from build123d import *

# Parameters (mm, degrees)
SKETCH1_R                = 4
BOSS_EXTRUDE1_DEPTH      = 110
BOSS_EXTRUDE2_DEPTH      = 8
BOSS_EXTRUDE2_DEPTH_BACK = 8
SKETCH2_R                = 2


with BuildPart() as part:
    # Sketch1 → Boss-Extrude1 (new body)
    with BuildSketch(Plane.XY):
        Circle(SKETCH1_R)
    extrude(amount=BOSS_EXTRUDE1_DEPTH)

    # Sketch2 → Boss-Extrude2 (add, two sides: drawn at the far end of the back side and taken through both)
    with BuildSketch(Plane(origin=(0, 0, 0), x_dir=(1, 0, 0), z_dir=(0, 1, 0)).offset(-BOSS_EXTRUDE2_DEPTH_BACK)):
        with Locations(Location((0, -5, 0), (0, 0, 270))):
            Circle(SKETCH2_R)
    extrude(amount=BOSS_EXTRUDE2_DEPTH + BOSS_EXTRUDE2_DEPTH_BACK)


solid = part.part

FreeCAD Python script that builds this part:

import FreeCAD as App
import Part
import Sketcher

V = App.Vector

doc = App.newDocument("Part")
body = doc.addObject("PartDesign::Body", "Body")

sketch1 = doc.addObject("Sketcher::SketchObject", "Sketch")
body.addObject(sketch1)
sketch1.AttachmentSupport = (doc.XY_Plane, [""])
sketch1.MapMode = "FlatFace"
sketch1.addGeometry(Part.Circle(V(0, 0, 0), V(0, 0, 1), 4), False)
sketch1.addConstraint([
    Sketcher.Constraint("Coincident", 0, 3, -1, 1),
    Sketcher.Constraint("Diameter", 0, 8.0),
])
pad1 = doc.addObject("PartDesign::Pad", "Pad")
body.addObject(pad1)
pad1.Profile = sketch1
pad1.Length = 110

sketch2 = doc.addObject("Sketcher::SketchObject", "Sketch001")
body.addObject(sketch2)
sketch2.AttachmentSupport = (doc.XZ_Plane, [""])
sketch2.MapMode = "FlatFace"
sketch2.addGeometry(Part.Circle(V(0, 5, 0), V(0, 0, 1), 2), False)
sketch2.addConstraint([
    Sketcher.Constraint("PointOnObject", 0, 3, -2),
    Sketcher.Constraint("Diameter", 0, 4.0),
    Sketcher.Constraint("DistanceY", -1, 1, 0, 3, 5.0),
])
pad2 = doc.addObject("PartDesign::Pad", "Pad001")
body.addObject(pad2)
pad2.Profile = sketch2
pad2.Type = "TwoLengths"
pad2.Length = 8
pad2.Length2 = 8
pad2.Reversed = True

doc.recompute()
